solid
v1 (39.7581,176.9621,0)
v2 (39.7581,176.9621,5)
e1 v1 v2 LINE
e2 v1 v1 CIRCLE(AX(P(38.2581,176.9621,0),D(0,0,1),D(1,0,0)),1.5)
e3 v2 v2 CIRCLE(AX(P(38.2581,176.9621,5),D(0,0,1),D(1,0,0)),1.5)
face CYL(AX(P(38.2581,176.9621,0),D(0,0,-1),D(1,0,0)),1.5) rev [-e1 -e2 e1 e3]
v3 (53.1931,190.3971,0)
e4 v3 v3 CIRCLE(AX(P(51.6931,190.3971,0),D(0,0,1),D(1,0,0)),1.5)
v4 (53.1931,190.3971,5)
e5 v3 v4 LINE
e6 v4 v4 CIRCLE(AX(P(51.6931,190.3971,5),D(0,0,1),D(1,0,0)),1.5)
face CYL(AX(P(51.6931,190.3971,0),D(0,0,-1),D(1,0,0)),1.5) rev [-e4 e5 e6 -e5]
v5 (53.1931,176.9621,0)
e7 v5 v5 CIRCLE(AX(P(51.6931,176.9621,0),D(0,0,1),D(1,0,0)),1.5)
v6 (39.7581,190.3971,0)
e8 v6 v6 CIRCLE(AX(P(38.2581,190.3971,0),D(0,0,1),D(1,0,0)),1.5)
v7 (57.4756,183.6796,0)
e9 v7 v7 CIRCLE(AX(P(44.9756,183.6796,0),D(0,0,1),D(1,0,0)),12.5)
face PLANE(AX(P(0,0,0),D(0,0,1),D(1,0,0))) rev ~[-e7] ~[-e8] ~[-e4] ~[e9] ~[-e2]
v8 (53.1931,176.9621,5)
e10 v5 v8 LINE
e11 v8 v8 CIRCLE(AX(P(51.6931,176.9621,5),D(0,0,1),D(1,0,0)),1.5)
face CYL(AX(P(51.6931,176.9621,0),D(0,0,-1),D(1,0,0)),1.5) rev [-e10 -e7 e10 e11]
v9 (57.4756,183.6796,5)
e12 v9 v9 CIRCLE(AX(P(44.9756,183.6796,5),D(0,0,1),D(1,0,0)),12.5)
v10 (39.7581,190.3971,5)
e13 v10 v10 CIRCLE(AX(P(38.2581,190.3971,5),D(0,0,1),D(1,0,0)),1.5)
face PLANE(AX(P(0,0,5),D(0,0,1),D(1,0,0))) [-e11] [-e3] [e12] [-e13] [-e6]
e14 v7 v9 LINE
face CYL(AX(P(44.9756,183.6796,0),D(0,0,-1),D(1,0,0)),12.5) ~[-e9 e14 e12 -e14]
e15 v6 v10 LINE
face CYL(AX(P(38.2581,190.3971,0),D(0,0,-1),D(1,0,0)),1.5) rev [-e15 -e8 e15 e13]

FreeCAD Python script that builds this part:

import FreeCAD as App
import Part
import Sketcher
from FreeCAD import Vector
Q = App.Units.Quantity

doc = App.newDocument("Part")
body = doc.addObject("PartDesign::Body", "Body")

sketch1 = doc.addObject("Sketcher::SketchObject", "Sketch")
body.addObject(sketch1)
sketch1.AttachmentSupport = (doc.XY_Plane, [""])
sketch1.MapMode = "FlatFace"
sketch1.addGeometry(Part.Circle(Vector(44.9756, 183.6796, 0), Vector(0, 0, 1), 12.5), False)
sketch1.addGeometry(Part.Circle(Vector(38.2581, 176.9621, 0), Vector(0, 0, 1), 1.5), False)
sketch1.addGeometry(Part.Circle(Vector(51.6931, 176.9621, 0), Vector(0, 0, 1), 1.5), False)
sketch1.addGeometry(Part.Circle(Vector(38.2581, 190.3971, 0), Vector(0, 0, 1), 1.5), False)
sketch1.addGeometry(Part.Circle(Vector(51.6931, 190.3971, 0), Vector(0, 0, 1), 1.5), False)
sketch1.addConstraint(Sketcher.Constraint("Equal", 1, 2))
sketch1.addConstraint(Sketcher.Constraint("Equal", 2, 3))
sketch1.addConstraint(Sketcher.Constraint("Equal", 3, 4))
sketch1.addConstraint(Sketcher.Constraint("Horizontal", 1, 3, 2, 3))
sketch1.addConstraint(Sketcher.Constraint("Horizontal", 3, 3, 4, 3))
sketch1.addConstraint(Sketcher.Constraint("Vertical", 1, 3, 3, 3))
sketch1.addConstraint(Sketcher.Constraint("Vertical", 2, 3, 4, 3))
sketch1.addConstraint(Sketcher.Constraint("Diameter", 0, Q("25 mm")))
sketch1.addConstraint(Sketcher.Constraint("Diameter", 1, Q("3 mm")))
sketch1.addConstraint(Sketcher.Constraint("DistanceX", -1, 1, 1, 3, Q("38.258 mm")))
sketch1.addConstraint(Sketcher.Constraint("DistanceY", -1, 1, 1, 3, Q("176.962 mm")))
sketch1.addConstraint(Sketcher.Constraint("DistanceX", -1, 1, 2, 3, Q("51.693 mm")))
sketch1.addConstraint(Sketcher.Constraint("DistanceY", -1, 1, 3, 3, Q("190.397 mm")))
sketch1.addConstraint(Sketcher.Constraint("DistanceX", -1, 1, 0, 3, Q("44.9756 mm")))
sketch1.addConstraint(Sketcher.Constraint("DistanceY", -1, 1, 0, 3, Q("183.6796 mm")))
pad1 = doc.addObject("PartDesign::Pad", "Pad")
body.addObject(pad1)
pad1.Profile = sketch1
pad1.Length = 5

doc.recompute()
